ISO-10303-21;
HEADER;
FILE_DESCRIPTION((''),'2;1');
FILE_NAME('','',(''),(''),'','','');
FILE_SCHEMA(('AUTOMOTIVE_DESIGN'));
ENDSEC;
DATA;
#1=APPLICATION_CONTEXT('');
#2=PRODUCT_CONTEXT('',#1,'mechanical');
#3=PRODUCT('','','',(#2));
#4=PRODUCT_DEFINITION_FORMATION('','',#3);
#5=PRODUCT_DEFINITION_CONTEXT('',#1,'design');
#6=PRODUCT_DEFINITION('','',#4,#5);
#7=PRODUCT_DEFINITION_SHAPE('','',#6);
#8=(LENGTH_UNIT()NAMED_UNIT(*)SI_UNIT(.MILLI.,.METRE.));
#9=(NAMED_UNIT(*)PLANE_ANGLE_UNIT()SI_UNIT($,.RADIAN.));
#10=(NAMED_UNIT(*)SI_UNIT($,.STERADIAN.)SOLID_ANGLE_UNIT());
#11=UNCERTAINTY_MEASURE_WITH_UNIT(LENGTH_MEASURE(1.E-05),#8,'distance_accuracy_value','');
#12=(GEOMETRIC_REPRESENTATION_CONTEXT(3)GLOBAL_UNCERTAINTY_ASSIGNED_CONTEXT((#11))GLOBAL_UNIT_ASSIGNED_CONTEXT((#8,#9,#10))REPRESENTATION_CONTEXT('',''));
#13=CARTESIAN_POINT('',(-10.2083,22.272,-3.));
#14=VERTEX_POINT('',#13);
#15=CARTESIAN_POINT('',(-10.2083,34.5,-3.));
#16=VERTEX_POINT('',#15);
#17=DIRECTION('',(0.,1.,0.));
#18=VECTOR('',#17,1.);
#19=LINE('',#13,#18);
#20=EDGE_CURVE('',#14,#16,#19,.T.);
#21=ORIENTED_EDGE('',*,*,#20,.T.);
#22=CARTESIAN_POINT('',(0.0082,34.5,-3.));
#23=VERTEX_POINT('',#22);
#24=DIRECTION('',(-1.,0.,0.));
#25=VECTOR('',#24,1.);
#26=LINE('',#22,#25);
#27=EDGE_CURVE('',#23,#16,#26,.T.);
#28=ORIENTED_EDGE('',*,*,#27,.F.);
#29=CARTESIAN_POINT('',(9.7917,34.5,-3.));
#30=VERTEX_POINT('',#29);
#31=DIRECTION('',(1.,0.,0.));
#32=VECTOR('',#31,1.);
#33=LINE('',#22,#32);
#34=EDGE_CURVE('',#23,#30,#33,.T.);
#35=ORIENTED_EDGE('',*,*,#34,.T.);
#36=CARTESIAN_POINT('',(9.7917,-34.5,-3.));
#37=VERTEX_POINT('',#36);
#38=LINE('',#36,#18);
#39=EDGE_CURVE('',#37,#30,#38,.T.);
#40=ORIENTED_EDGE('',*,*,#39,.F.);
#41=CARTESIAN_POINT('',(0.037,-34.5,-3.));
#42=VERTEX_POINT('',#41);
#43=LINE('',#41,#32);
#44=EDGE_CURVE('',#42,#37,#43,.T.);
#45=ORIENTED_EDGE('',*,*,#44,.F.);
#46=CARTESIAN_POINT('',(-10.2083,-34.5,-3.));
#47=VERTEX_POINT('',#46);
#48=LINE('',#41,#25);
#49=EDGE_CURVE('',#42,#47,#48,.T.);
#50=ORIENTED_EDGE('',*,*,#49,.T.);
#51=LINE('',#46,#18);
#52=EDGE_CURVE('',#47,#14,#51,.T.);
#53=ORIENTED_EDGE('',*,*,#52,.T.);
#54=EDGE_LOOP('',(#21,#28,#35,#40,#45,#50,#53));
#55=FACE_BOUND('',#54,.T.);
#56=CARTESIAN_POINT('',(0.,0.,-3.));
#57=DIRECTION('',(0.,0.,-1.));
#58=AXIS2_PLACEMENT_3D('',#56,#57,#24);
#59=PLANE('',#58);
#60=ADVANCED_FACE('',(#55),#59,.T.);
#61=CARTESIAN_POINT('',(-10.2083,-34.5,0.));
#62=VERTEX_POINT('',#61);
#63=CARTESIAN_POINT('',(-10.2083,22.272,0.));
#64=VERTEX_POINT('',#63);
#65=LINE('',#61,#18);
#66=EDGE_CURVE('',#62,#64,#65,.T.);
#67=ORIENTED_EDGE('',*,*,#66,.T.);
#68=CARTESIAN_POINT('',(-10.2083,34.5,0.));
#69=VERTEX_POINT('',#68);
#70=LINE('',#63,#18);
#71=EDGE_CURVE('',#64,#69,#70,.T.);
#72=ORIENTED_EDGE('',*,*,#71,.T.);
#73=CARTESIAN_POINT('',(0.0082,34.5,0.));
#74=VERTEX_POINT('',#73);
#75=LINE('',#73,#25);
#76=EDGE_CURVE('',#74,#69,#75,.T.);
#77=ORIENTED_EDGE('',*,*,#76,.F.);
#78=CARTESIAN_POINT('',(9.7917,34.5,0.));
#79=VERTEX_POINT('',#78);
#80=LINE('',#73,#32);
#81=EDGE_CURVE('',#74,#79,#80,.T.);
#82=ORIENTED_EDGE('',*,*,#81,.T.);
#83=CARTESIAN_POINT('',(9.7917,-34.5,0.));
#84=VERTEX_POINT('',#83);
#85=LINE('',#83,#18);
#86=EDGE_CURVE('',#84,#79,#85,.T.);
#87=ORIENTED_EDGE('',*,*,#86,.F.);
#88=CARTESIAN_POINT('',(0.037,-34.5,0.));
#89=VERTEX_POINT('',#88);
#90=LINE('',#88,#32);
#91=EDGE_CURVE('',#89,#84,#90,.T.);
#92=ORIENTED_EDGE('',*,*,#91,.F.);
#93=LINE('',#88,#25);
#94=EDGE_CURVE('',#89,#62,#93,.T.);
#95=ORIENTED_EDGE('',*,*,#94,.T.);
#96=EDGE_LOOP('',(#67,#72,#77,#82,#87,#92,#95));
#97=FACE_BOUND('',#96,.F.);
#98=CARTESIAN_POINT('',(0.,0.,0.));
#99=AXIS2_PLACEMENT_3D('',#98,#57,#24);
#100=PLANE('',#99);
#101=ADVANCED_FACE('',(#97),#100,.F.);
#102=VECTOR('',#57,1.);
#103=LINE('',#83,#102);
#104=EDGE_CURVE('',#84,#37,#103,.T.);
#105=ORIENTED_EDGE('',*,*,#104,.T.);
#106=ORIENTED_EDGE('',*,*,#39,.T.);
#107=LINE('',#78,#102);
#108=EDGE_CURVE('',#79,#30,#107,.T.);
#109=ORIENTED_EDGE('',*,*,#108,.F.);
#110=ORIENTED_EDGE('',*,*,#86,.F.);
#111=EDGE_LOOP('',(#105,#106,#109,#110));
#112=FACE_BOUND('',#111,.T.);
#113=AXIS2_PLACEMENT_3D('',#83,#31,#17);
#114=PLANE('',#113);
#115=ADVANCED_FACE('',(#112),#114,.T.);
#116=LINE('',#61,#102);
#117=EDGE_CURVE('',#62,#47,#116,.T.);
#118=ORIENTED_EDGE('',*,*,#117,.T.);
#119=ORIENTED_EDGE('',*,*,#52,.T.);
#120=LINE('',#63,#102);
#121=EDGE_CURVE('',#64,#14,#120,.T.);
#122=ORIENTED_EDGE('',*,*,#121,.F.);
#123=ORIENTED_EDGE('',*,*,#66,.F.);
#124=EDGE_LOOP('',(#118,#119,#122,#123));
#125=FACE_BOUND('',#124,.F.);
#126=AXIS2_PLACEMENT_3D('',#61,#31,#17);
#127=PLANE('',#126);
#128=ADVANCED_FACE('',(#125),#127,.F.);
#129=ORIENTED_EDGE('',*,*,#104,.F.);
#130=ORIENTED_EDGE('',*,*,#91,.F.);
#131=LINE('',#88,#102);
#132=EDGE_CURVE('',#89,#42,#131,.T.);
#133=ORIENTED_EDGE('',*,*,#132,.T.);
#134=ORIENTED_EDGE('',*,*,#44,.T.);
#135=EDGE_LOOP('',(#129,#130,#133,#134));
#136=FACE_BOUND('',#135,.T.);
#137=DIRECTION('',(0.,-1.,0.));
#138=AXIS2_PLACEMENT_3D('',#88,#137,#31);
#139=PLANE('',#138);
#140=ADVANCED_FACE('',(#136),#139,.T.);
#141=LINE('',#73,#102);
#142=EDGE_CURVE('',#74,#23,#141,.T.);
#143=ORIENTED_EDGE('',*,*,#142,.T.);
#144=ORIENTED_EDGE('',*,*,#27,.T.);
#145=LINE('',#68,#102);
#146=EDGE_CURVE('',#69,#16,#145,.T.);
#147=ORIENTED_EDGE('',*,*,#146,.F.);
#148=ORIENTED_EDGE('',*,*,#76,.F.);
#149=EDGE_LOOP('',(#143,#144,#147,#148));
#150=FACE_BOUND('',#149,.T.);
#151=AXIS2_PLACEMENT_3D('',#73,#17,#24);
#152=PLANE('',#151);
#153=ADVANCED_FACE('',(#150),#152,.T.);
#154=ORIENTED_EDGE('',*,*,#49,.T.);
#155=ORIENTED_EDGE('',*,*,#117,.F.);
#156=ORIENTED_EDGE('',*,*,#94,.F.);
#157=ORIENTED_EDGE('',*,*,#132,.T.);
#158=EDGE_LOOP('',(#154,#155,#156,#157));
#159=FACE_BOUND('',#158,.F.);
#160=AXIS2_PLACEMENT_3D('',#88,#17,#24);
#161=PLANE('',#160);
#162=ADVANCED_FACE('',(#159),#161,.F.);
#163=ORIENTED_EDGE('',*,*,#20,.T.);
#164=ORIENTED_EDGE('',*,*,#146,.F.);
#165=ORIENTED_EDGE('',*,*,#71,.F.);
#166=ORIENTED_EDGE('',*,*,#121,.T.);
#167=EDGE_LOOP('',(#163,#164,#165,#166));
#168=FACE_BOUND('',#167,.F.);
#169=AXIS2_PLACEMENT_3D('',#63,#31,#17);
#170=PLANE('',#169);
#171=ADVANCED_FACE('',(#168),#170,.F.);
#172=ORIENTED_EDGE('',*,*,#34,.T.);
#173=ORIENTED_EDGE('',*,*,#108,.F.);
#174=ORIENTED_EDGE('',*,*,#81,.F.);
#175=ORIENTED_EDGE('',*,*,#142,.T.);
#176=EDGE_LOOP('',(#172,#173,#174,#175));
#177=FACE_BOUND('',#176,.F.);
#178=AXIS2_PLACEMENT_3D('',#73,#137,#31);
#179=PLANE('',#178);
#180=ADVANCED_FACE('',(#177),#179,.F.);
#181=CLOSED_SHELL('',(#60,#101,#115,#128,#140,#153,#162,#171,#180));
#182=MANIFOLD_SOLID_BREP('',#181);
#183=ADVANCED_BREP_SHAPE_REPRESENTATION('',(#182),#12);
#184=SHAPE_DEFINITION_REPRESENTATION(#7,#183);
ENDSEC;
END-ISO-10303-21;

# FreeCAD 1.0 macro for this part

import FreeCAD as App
import Part
import Sketcher
from FreeCAD import Vector


def add_polygon(sketch, points):
    """Adds a closed chain of lines whose ends are joined by coincident constraints."""
    first, n = sketch.GeometryCount, len(points)
    for a, b in zip(points, points[1:] + points[:1]):
        sketch.addGeometry(Part.LineSegment(App.Vector(*a, 0), App.Vector(*b, 0)), False)
    for i in range(n):
        sketch.addConstraint(Sketcher.Constraint("Coincident", first + i, 2, first + (i + 1) % n, 1))

doc = App.newDocument("Part")
params = doc.addObject("Spreadsheet::Sheet", "Params")
for row, (alias, value) in enumerate([
    ("sketch1_width", "20 mm"),
    ("sketch1_height", "69 mm"),
    ("pad1_length", "3 mm"),
], start=1):
    params.set(f"A{row}", alias)
    params.set(f"B{row}", "=" + value)
    params.setAlias(f"B{row}", alias)

body = doc.addObject("PartDesign::Body", "Body")

# Sketch on XY plane
sketch1 = body.newObject("Sketcher::SketchObject", "Sketch")
sketch1.AttachmentSupport = (doc.getObject("XY_Plane"), [""])
sketch1.MapMode = "FlatFace"
add_polygon(sketch1, [(-10, -34), (-10, 34), (10, 34), (10, -34)])  # lines 0-3
sketch1.addConstraint([
    Sketcher.Constraint("Vertical", 0),
    Sketcher.Constraint("Horizontal", 1),
    Sketcher.Constraint("Vertical", 2),
    Sketcher.Constraint("Horizontal", 3),
    Sketcher.Constraint("DistanceX", 1, 1, 1, 2, 20.0),
    Sketcher.Constraint("DistanceY", 0, 1, 0, 2, 69.0),
    Sketcher.Constraint("DistanceY", -1, 1, 0, 2, 34.5),
    Sketcher.Constraint("DistanceX", 0, 2, -1, 1, 10.2083),
])
sketch1.setExpression("Constraints[8]", "Params.sketch1_width")
sketch1.setExpression("Constraints[9]", "Params.sketch1_height")
pad1 = body.newObject("PartDesign::Pad", "Pad")
pad1.Profile = sketch1
pad1.setExpression("Length", "Params.pad1_length")
pad1.Reversed = True

doc.recompute()
